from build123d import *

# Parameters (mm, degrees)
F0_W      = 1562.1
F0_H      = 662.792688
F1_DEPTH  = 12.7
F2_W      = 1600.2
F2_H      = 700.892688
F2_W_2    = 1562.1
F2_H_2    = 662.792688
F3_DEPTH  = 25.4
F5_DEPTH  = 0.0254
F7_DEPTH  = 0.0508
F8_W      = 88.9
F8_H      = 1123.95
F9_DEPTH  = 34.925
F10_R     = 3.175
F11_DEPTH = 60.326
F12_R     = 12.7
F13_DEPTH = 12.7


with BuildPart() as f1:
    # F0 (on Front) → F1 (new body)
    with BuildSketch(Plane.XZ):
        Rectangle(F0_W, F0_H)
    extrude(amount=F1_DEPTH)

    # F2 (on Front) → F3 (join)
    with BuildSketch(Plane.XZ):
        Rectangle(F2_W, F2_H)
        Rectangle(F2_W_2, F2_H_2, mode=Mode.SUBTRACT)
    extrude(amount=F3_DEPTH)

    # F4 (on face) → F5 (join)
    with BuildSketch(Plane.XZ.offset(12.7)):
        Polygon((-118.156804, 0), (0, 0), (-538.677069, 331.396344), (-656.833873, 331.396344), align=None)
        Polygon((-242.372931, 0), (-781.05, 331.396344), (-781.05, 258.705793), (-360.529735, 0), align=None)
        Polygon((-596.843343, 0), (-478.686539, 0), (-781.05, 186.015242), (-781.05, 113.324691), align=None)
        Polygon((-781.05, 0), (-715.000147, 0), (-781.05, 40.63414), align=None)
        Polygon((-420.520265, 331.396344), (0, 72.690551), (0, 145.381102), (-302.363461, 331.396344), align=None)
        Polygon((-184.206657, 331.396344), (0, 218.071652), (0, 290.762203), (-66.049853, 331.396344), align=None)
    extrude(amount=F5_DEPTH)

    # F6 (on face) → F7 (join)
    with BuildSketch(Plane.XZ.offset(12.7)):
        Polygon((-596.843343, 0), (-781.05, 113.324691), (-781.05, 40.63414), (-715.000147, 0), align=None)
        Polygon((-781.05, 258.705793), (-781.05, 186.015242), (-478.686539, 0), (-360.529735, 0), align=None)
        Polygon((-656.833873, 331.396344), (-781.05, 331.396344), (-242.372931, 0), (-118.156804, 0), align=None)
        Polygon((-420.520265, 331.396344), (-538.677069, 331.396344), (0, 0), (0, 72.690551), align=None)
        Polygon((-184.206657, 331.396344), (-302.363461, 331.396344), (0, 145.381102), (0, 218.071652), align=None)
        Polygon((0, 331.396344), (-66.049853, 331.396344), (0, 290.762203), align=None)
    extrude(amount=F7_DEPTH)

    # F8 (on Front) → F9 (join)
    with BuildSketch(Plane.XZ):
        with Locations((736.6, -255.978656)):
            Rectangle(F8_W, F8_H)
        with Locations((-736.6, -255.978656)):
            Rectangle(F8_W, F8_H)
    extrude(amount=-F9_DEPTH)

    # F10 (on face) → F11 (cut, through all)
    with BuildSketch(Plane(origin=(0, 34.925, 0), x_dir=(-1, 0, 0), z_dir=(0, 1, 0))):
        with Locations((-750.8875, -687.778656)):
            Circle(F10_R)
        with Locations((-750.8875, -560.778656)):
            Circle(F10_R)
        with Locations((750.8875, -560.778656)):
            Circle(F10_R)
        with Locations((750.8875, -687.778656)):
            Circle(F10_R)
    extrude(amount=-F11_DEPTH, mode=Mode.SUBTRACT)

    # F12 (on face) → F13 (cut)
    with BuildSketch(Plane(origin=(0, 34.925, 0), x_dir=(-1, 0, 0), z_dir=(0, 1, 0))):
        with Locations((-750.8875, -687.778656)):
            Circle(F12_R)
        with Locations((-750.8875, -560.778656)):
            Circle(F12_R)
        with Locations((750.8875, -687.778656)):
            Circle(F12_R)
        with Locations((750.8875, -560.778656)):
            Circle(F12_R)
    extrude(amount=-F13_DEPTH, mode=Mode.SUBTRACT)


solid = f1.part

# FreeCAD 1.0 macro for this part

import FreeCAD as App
import Part
import Sketcher
from FreeCAD import Vector
Q = App.Units.Quantity


def add_polygon(sketch, points):
    """Adds a closed chain of lines whose ends are joined by coincident constraints."""
    first, n = sketch.GeometryCount, len(points)
    for a, b in zip(points, points[1:] + points[:1]):
        sketch.addGeometry(Part.LineSegment(App.Vector(*a, 0), App.Vector(*b, 0)), False)
    for i in range(n):
        sketch.addConstraint(Sketcher.Constraint("Coincident", first + i, 2, first + (i + 1) % n, 1))

doc = App.newDocument("Part")
body = doc.addObject("PartDesign::Body", "Body")

# Sketch on XZ plane
sketch1 = doc.addObject("Sketcher::SketchObject", "Sketch")
body.addObject(sketch1)
sketch1.AttachmentSupport = (doc.XZ_Plane, [""])
sketch1.MapMode = "FlatFace"
add_polygon(sketch1, [(-781, 331), (-781, -331), (781, -331), (781, 331)])  # lines 0-3
sketch1.addConstraint([
    Sketcher.Constraint("Vertical", 0),
    Sketcher.Constraint("Horizontal", 1),
    Sketcher.Constraint("Vertical", 2),
    Sketcher.Constraint("Horizontal", 3),
    Sketcher.Constraint("Symmetric", 0, 2, 2, 2, -1, 1),
    Sketcher.Constraint("DistanceX", 1, 1, 1, 2, Q("61.5 in")),
    Sketcher.Constraint("DistanceY", 0, 2, -1, 1, Q("13.0471002 in")),
])
pad1 = doc.addObject("PartDesign::Pad", "Pad")
body.addObject(pad1)
pad1.Profile = sketch1
pad1.Length = Q("0.5 in")

# Sketch on XZ plane
sketch2 = doc.addObject("Sketcher::SketchObject", "Sketch001")
body.addObject(sketch2)
sketch2.AttachmentSupport = (doc.XZ_Plane, [""])
sketch2.MapMode = "FlatFace"
add_polygon(sketch2, [(-800, 350), (-800, -350), (800, -350), (800, 350)])  # lines 0-3
add_polygon(sketch2, [(781, -331), (-781, -331), (-781, 331), (781, 331)])  # lines 4-7
sketch2.addConstraint([
    Sketcher.Constraint("Vertical", 0),
    Sketcher.Constraint("Horizontal", 1),
    Sketcher.Constraint("Vertical", 2),
    Sketcher.Constraint("Horizontal", 3),
    Sketcher.Constraint("Horizontal", 4),
    Sketcher.Constraint("Vertical", 5),
    Sketcher.Constraint("Horizontal", 6),
    Sketcher.Constraint("Vertical", 7),
    Sketcher.Constraint("Symmetric", 0, 2, 2, 2, -1, 1),
    Sketcher.Constraint("Symmetric", 4, 2, 6, 2, -1, 1),
    Sketcher.Constraint("DistanceX", 1, 1, 1, 2, Q("63 in")),
    Sketcher.Constraint("DistanceX", 4, 2, 4, 1, Q("61.5 in")),
    Sketcher.Constraint("DistanceY", 0, 2, 4, 2, Q("0.75 in")),
    Sketcher.Constraint("DistanceY", 0, 2, -1, 1, Q("13.7971002 in")),
])
pad2 = doc.addObject("PartDesign::Pad", "Pad001")
body.addObject(pad2)
pad2.Profile = sketch2
pad2.Length = Q("1 in")

# Sketch on XZ plane
sketch3 = doc.addObject("Sketcher::SketchObject", "Sketch002")
body.addObject(sketch3)
sketch3.AttachmentSupport = (doc.XZ_Plane, [""])
sketch3.MapMode = "FlatFace"
sketch3.AttachmentOffset = App.Placement(Vector(0, 0, 0.5 * 25.4), App.Rotation())
add_polygon(sketch3, [(-118, 0), (0, 0), (-539, 331), (-657, 331)])  # lines 0-3
add_polygon(sketch3, [(-242, 0), (-781, 331), (-781, 259), (-361, 0)])  # lines 4-7
add_polygon(sketch3, [(-597, 0), (-479, 0), (-781, 186), (-781, 113)])  # lines 8-11
add_polygon(sketch3, [(-781, 0), (-715, 0), (-781, 41)])  # lines 12-14
add_polygon(sketch3, [(-421, 331), (0, 73), (0, 145), (-302, 331)])  # lines 15-18
add_polygon(sketch3, [(-184, 331), (0, 218), (0, 291), (-66, 331)])  # lines 19-22
sketch3.addConstraint([
    Sketcher.Constraint("Horizontal", 0),
    Sketcher.Constraint("Horizontal", 2),
    Sketcher.Constraint("Vertical", 5),
    Sketcher.Constraint("Horizontal", 7),
    Sketcher.Constraint("Horizontal", 8),
    Sketcher.Constraint("Vertical", 10),
    Sketcher.Constraint("Horizontal", 12),
    Sketcher.Constraint("Vertical", 14),
    Sketcher.Constraint("Vertical", 16),
    Sketcher.Constraint("Horizontal", 18),
    Sketcher.Constraint("Vertical", 20),
    Sketcher.Constraint("Horizontal", 22),
    Sketcher.Constraint("Coincident", 0, 2, -1, 1),
    Sketcher.Constraint("PointOnObject", 6, 2, -1),
    Sketcher.Constraint("PointOnObject", 8, 2, -1),
    Sketcher.Constraint("PointOnObject", 12, 2, -1),
    Sketcher.Constraint("PointOnObject", 15, 2, -2),
    Sketcher.Constraint("PointOnObject", 19, 2, -2),
    Sketcher.Constraint("Parallel", 1, 3),
    Sketcher.Constraint("Parallel", 3, 4),
    Sketcher.Constraint("Parallel", 4, 6),
    Sketcher.Constraint("Parallel", 6, 9),
    Sketcher.Constraint("Parallel", 9, 11),
    Sketcher.Constraint("Parallel", 11, 13),
    Sketcher.Constraint("Parallel", 13, 15),
    Sketcher.Constraint("Parallel", 15, 17),
    Sketcher.Constraint("Parallel", 17, 19),
    Sketcher.Constraint("Parallel", 19, 21),
    Sketcher.Constraint("Horizontal", 2, 2, 4, 2),
    Sketcher.Constraint("Horizontal", 4, 2, 17, 2),
    Sketcher.Constraint("Horizontal", 18, 2, 21, 2),
    Sketcher.Constraint("Vertical", 5, 2, 9, 2),
    Sketcher.Constraint("Vertical", 10, 2, 13, 2),
    Sketcher.Constraint("Equal", 2, 7),
    Sketcher.Constraint("Equal", 7, 8),
    Sketcher.Constraint("Equal", 8, 18),
    Sketcher.Constraint("Equal", 18, 22),
    Sketcher.Constraint("Equal", 6, 15),
    Sketcher.Constraint("Equal", 9, 17),
    Sketcher.Constraint("Equal", 11, 19),
    Sketcher.Constraint("Equal", 13, 21),
    Sketcher.Constraint("Angle", 1, Q("148.4 deg")),
    Sketcher.Constraint("DistanceX", 4, 2, -1, 1, Q("30.75 in")),
    Sketcher.Constraint("DistanceY", -1, 1, 1, 2, Q("13.0471002 in")),
    Sketcher.Constraint("DistanceY", 5, 2, 5, 1, Q("72.690551 mm")),
])
pad3 = doc.addObject("PartDesign::Pad", "Pad002")
body.addObject(pad3)
pad3.Profile = sketch3
pad3.Length = Q("0.001 in")

# Sketch on XZ plane
sketch4 = doc.addObject("Sketcher::SketchObject", "Sketch003")
body.addObject(sketch4)
sketch4.AttachmentSupport = (doc.XZ_Plane, [""])
sketch4.MapMode = "FlatFace"
sketch4.AttachmentOffset = App.Placement(Vector(0, 0, 0.5 * 25.4), App.Rotation())
add_polygon(sketch4, [(-597, 0), (-781, 113), (-781, 41), (-715, 0)])  # lines 0-3
add_polygon(sketch4, [(-781, 259), (-781, 186), (-479, 0), (-361, 0)])  # lines 4-7
add_polygon(sketch4, [(-657, 331), (-781, 331), (-242, 0), (-118, 0)])  # lines 8-11
add_polygon(sketch4, [(-421, 331), (-539, 331), (0, 0), (0, 73)])  # lines 12-15
add_polygon(sketch4, [(-184, 331), (-302, 331), (0, 145), (0, 218)])  # lines 16-19
add_polygon(sketch4, [(0, 331), (-66, 331), (0, 291)])  # lines 20-22
sketch4.addConstraint([
    Sketcher.Constraint("Vertical", 1),
    Sketcher.Constraint("Horizontal", 3),
    Sketcher.Constraint("Vertical", 4),
    Sketcher.Constraint("Horizontal", 6),
    Sketcher.Constraint("Horizontal", 8),
    Sketcher.Constraint("Horizontal", 10),
    Sketcher.Constraint("Horizontal", 12),
    Sketcher.Constraint("Vertical", 14),
    Sketcher.Constraint("Horizontal", 16),
    Sketcher.Constraint("Vertical", 18),
    Sketcher.Constraint("Horizontal", 20),
    Sketcher.Constraint("Vertical", 22),
    Sketcher.Constraint("Coincident", 13, 2, -1, 1),
    Sketcher.Constraint("PointOnObject", 2, 2, -1),
    Sketcher.Constraint("PointOnObject", 5, 2, -1),
    Sketcher.Constraint("PointOnObject", 9, 2, -1),
    Sketcher.Constraint("PointOnObject", 17, 2, -2),
    Sketcher.Constraint("PointOnObject", 21, 2, -2),
    Sketcher.Constraint("Parallel", 0, 2),
    Sketcher.Constraint("Parallel", 2, 5),
    Sketcher.Constraint("Parallel", 5, 7),
    Sketcher.Constraint("Parallel", 7, 9),
    Sketcher.Constraint("Parallel", 9, 11),
    Sketcher.Constraint("Parallel", 11, 13),
    Sketcher.Constraint("Parallel", 13, 15),
    Sketcher.Constraint("Parallel", 15, 17),
    Sketcher.Constraint("Parallel", 17, 19),
    Sketcher.Constraint("Parallel", 19, 21),
    Sketcher.Constraint("Horizontal", 11, 2, 12, 2),
    Sketcher.Constraint("Horizontal", 15, 2, 16, 2),
    Sketcher.Constraint("Horizontal", 19, 2, 20, 2),
    Sketcher.Constraint("Vertical", 1, 2, 4, 2),
    Sketcher.Constraint("Vertical", 7, 2, 8, 2),
    Sketcher.Constraint("Equal", 3, 6),
    Sketcher.Constraint("Equal", 6, 12),
    Sketcher.Constraint("Equal", 12, 16),
    Sketcher.Constraint("Equal", 7, 15),
    Sketcher.Constraint("Equal", 5, 17),
    Sketcher.Constraint("Equal", 0, 19),
    Sketcher.Constraint("Equal", 2, 21),
    Sketcher.Constraint("Angle", 0, Q("148.4 deg")),
    Sketcher.Constraint("DistanceX", 0, 2, -1, 1, Q("30.75 in")),
    Sketcher.Constraint("DistanceY", -1, 1, 8, 2, Q("13.0471002 in")),
    Sketcher.Constraint("DistanceY", 1, 2, 1, 1, Q("72.690551 mm")),
    Sketcher.Constraint("DistanceX", 8, 2, 8, 1, Q("124.216127 mm")),
])
pad4 = doc.addObject("PartDesign::Pad", "Pad003")
body.addObject(pad4)
pad4.Profile = sketch4
pad4.Length = Q("0.002 in")

# Sketch on XZ plane
sketch5 = doc.addObject("Sketcher::SketchObject", "Sketch004")
body.addObject(sketch5)
sketch5.AttachmentSupport = (doc.XZ_Plane, [""])
sketch5.MapMode = "FlatFace"
add_polygon(sketch5, [(692, 306), (692, -818), (781, -818), (781, 306)])  # lines 0-3
add_polygon(sketch5, [(-781, 306), (-781, -818), (-692, -818), (-692, 306)])  # lines 4-7
sketch5.addConstraint([
    Sketcher.Constraint("Vertical", 0),
    Sketcher.Constraint("Horizontal", 1),
    Sketcher.Constraint("Vertical", 2),
    Sketcher.Constraint("Horizontal", 3),
    Sketcher.Constraint("Vertical", 4),
    Sketcher.Constraint("Horizontal", 5),
    Sketcher.Constraint("Vertical", 6),
    Sketcher.Constraint("Horizontal", 7),
    Sketcher.Constraint("Symmetric", 1, 2, 4, 2, -2),
    Sketcher.Constraint("Symmetric", 3, 2, 6, 2, -2),
    Sketcher.Constraint("DistanceX", 1, 1, 1, 2, Q("3.5 in")),
    Sketcher.Constraint("DistanceX", 4, 2, 0, 2, Q("58 in")),
    Sketcher.Constraint("DistanceY", 0, 2, 0, 1, Q("44.25 in")),
    Sketcher.Constraint("DistanceY", 0, 2, -1, 1, Q("32.2028998 in")),
])
pad5 = doc.addObject("PartDesign::Pad", "Pad004")
body.addObject(pad5)
pad5.Profile = sketch5
pad5.Length = Q("1.375 in")
pad5.Reversed = True

# Sketch on XZ plane
sketch6 = doc.addObject("Sketcher::SketchObject", "Sketch005")
body.addObject(sketch6)
sketch6.AttachmentSupport = (doc.XZ_Plane, [""])
sketch6.MapMode = "FlatFace"
sketch6.AttachmentOffset = App.Placement(Vector(0, 0, -1.375 * 25.4), App.Rotation())
sketch6.addGeometry([
    Part.Circle(Vector(750.9, -687.8, 0), Vector(0, 0, 1), 3.2),
    Part.Circle(Vector(750.9, -560.8, 0), Vector(0, 0, 1), 3.2),
    Part.Circle(Vector(-750.9, -560.8, 0), Vector(0, 0, 1), 3.2),
    Part.Circle(Vector(-750.9, -687.8, 0), Vector(0, 0, 1), 3.2),
], False)
sketch6.addConstraint([
    Sketcher.Constraint("Equal", 0, 1),
    Sketcher.Constraint("Equal", 1, 2),
    Sketcher.Constraint("Equal", 2, 3),
    Sketcher.Constraint("Symmetric", 1, 3, 2, 3, -2),
    Sketcher.Constraint("Symmetric", 0, 3, 3, 3, -2),
    Sketcher.Constraint("Vertical", 0, 3, 1, 3),
    Sketcher.Constraint("Diameter", 0, Q("0.25 in")),
    Sketcher.Constraint("DistanceY", 0, 3, 1, 3, Q("5 in")),
    Sketcher.Constraint("DistanceX", -1, 1, 0, 3, Q("29.5625 in")),
    Sketcher.Constraint("DistanceY", 0, 3, -1, 1, Q("27.0778998 in")),
])
pocket1 = doc.addObject("PartDesign::Pocket", "Pocket")
body.addObject(pocket1)
pocket1.Profile = sketch6
pocket1.Type = "ThroughAll"
pocket1.Reversed = True

# Sketch on XZ plane
sketch7 = doc.addObject("Sketcher::SketchObject", "Sketch006")
body.addObject(sketch7)
sketch7.AttachmentSupport = (doc.XZ_Plane, [""])
sketch7.MapMode = "FlatFace"
sketch7.AttachmentOffset = App.Placement(Vector(0, 0, -1.375 * 25.4), App.Rotation())
sketch7.addGeometry([
    Part.Circle(Vector(751, -688, 0), Vector(0, 0, 1), 13),
    Part.Circle(Vector(751, -561, 0), Vector(0, 0, 1), 13),
    Part.Circle(Vector(-751, -688, 0), Vector(0, 0, 1), 13),
    Part.Circle(Vector(-751, -561, 0), Vector(0, 0, 1), 13),
], False)
sketch7.addConstraint([
    Sketcher.Constraint("Equal", 0, 1),
    Sketcher.Constraint("Equal", 1, 2),
    Sketcher.Constraint("Equal", 2, 3),
    Sketcher.Constraint("Symmetric", 0, 3, 2, 3, -2),
    Sketcher.Constraint("Symmetric", 1, 3, 3, 3, -2),
    Sketcher.Constraint("Vertical", 0, 3, 1, 3),
    Sketcher.Constraint("Diameter", 0, Q("1 in")),
    Sketcher.Constraint("DistanceY", 0, 3, 1, 3, Q("5 in")),
    Sketcher.Constraint("DistanceX", -1, 1, 0, 3, Q("29.5625 in")),
    Sketcher.Constraint("DistanceY", 0, 3, -1, 1, Q("27.0778998 in")),
])
pocket2 = doc.addObject("PartDesign::Pocket", "Pocket001")
body.addObject(pocket2)
pocket2.Profile = sketch7
pocket2.Length = Q("0.5 in")
pocket2.Reversed = True

doc.recompute()
